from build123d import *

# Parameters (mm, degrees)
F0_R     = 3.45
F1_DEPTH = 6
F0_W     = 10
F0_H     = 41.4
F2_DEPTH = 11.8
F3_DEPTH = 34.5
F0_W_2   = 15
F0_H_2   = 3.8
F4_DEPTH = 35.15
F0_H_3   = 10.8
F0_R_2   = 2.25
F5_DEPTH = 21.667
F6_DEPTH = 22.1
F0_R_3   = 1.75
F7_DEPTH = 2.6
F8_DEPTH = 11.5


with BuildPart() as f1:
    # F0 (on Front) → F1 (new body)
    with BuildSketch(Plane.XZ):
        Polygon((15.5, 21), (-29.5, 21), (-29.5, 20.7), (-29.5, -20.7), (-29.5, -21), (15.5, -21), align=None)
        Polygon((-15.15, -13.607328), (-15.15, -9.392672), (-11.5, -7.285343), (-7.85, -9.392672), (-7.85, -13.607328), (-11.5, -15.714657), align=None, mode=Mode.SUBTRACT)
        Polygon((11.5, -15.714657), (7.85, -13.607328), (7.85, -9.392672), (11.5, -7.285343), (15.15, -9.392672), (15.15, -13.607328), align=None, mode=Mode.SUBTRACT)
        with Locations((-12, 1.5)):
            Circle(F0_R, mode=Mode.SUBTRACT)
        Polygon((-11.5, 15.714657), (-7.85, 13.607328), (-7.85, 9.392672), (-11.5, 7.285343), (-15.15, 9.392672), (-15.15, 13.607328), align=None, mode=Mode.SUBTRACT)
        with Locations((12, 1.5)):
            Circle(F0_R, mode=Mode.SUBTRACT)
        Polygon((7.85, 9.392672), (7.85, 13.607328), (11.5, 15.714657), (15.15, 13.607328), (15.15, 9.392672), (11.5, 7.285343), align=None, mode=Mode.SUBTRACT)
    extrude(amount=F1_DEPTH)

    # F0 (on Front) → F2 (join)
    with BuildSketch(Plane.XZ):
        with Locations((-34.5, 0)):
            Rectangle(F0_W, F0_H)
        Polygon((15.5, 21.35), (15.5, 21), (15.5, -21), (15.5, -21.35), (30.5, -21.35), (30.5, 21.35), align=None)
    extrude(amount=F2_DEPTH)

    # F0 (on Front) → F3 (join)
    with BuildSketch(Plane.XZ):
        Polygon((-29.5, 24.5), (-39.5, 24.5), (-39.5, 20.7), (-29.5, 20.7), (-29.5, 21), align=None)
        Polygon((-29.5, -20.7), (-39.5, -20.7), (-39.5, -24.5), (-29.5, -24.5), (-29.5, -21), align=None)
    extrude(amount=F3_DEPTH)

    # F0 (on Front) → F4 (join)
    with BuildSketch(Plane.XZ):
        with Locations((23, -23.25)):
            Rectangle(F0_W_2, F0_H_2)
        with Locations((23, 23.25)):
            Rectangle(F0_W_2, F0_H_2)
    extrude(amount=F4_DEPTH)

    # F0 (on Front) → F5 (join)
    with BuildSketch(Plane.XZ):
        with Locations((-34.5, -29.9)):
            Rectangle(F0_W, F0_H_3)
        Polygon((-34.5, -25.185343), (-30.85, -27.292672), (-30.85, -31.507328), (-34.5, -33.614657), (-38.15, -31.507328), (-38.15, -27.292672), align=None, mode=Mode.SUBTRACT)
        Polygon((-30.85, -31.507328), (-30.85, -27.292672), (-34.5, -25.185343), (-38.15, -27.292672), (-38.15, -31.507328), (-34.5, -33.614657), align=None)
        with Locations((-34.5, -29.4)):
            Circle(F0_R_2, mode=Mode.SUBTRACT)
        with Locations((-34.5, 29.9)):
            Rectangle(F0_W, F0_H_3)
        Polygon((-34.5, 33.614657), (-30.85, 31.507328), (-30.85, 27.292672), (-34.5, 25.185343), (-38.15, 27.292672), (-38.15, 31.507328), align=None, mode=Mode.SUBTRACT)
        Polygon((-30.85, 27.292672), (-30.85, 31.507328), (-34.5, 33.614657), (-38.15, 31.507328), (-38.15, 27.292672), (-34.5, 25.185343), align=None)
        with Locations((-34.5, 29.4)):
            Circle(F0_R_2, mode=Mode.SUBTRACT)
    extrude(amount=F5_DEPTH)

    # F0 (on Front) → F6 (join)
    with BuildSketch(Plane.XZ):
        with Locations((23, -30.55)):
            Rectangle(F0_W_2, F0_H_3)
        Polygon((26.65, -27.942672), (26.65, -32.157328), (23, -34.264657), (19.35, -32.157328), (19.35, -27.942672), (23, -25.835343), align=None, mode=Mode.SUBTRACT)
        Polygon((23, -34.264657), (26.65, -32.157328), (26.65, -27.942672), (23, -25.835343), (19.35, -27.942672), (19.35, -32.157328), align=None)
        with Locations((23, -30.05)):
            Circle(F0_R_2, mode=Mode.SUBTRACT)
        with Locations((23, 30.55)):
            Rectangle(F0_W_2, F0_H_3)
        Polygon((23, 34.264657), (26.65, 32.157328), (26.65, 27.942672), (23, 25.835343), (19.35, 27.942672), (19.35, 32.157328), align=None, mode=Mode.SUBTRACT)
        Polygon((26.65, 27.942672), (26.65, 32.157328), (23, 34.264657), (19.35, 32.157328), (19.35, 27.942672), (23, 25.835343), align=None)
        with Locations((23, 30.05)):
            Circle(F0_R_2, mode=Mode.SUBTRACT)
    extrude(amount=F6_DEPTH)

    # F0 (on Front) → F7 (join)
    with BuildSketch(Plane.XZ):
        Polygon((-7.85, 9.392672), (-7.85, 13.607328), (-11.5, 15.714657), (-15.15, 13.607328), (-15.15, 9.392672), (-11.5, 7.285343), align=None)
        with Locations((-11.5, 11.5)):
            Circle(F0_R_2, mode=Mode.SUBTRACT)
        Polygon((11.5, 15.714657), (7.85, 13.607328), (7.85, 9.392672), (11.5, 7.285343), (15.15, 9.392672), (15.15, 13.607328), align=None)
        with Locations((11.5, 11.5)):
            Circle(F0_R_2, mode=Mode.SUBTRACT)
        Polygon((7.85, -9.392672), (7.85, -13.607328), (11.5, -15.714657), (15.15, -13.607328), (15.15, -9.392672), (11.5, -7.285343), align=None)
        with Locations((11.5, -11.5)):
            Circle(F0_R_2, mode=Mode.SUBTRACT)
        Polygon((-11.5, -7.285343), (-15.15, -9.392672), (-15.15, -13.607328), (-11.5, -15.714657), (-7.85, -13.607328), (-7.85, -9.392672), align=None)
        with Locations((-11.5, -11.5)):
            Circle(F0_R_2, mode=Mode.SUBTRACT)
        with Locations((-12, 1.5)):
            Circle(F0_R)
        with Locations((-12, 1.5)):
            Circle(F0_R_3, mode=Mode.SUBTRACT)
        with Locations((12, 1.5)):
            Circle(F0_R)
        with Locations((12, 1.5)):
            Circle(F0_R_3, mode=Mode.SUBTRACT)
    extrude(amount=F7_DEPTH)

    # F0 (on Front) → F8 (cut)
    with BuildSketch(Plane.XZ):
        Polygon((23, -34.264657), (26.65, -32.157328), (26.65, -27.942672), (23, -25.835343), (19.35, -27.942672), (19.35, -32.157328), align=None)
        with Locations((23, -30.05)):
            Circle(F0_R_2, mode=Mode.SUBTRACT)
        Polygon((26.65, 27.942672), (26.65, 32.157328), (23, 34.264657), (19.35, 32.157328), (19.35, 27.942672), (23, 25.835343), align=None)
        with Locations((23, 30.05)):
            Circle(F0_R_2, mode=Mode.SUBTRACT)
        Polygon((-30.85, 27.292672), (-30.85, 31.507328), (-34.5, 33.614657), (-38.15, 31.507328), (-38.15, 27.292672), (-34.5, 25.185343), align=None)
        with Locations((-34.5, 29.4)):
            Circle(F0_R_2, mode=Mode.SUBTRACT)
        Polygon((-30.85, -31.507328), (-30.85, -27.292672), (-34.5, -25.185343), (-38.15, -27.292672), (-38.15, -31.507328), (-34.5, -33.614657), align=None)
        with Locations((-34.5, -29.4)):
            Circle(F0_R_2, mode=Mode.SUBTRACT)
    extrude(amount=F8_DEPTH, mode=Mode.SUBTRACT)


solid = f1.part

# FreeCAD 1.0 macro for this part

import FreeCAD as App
import Part
import Sketcher
from FreeCAD import Vector
Q = App.Units.Quantity


def add_polygon(sketch, points):
    """Adds a closed chain of lines whose ends are joined by coincident constraints."""
    first, n = sketch.GeometryCount, len(points)
    for a, b in zip(points, points[1:] + points[:1]):
        sketch.addGeometry(Part.LineSegment(App.Vector(*a, 0), App.Vector(*b, 0)), False)
    for i in range(n):
        sketch.addConstraint(Sketcher.Constraint("Coincident", first + i, 2, first + (i + 1) % n, 1))

doc = App.newDocument("Part")
params = doc.addObject("Spreadsheet::Sheet", "Params")
for row, (alias, value) in enumerate([
    ("sketch1_diameter", "6.9 mm"),
    ("sketch1_width", "45 mm"),
    ("sketch1_height", "42 mm"),
    ("pad1_length", "6 mm"),
    ("sketch2_width", "10 mm"),
    ("sketch2_width2", "15 mm"),
    ("sketch2_height", "41.4 mm"),
    ("sketch2_height2", "42.7 mm"),
    ("pad2_length", "11.8 mm"),
    ("sketch3_width", "10 mm"),
    ("sketch3_height", "3.8 mm"),
    ("pad3_length", "34.5 mm"),
    ("sketch4_width", "15 mm"),
    ("sketch4_height", "3.8 mm"),
    ("pad4_length", "35.15 mm"),
    ("sketch5_diameter", "4.5 mm"),
    ("sketch5_width", "10 mm"),
    ("sketch5_height", "10.8 mm"),
    ("pad5_length", "21.667 mm"),
    ("sketch6_diameter", "4.5 mm"),
    ("sketch6_width", "15 mm"),
    ("sketch6_height", "10.8 mm"),
    ("pad6_length", "22.1 mm"),
    ("sketch7_diameter", "4.5 mm"),
    ("sketch7_diameter2", "6.9 mm"),
    ("sketch7_diameter3", "3.5 mm"),
    ("pad7_length", "2.6 mm"),
    ("sketch8_diameter", "4.5 mm"),
    ("pocket1_length", "11.5 mm"),
], start=1):
    params.set(f"A{row}", alias)
    params.set(f"B{row}", "=" + value)
    params.setAlias(f"B{row}", alias)

body = doc.addObject("PartDesign::Body", "Body")

# Sketch on XZ plane
sketch1 = body.newObject("Sketcher::SketchObject", "Sketch")
sketch1.AttachmentSupport = (doc.getObject("XZ_Plane"), [""])
sketch1.MapMode = "FlatFace"
add_polygon(sketch1, [(15.5, 21), (-29.5, 21), (-29.5, -21), (15.5, -21)])  # lines 0-3
add_polygon(sketch1, [(-11.5, -15.714657), (-15.15, -13.607328), (-15.15, -9.392672), (-11.5, -7.285343), (-7.85, -9.392672), (-7.85, -13.607328)])  # lines 4-9
add_polygon(sketch1, [(15.15, -13.607328), (11.5, -15.714657), (7.85, -13.607328), (7.85, -9.392672), (11.5, -7.285343), (15.15, -9.392672)])  # lines 10-15
sketch1.addGeometry(Part.Circle(Vector(-12, 1.5, 0), Vector(0, 0, 1), 3.45), False)  # 16
add_polygon(sketch1, [(-15.15, 13.607328), (-11.5, 15.714657), (-7.85, 13.607328), (-7.85, 9.392672), (-11.5, 7.285343), (-15.15, 9.392672)])  # lines 17-22
sketch1.addGeometry(Part.Circle(Vector(12, 1.5, 0), Vector(0, 0, 1), 3.45), False)  # 23
add_polygon(sketch1, [(11.5, 7.285343), (7.85, 9.392672), (7.85, 13.607328), (11.5, 15.714657), (15.15, 13.607328), (15.15, 9.392672)])  # lines 24-29
sketch1.addConstraint([
    Sketcher.Constraint("Horizontal", 0),
    Sketcher.Constraint("Vertical", 1),
    Sketcher.Constraint("Horizontal", 2),
    Sketcher.Constraint("Vertical", 3),
    Sketcher.Constraint("Vertical", 5),
    Sketcher.Constraint("Vertical", 8),
    Sketcher.Constraint("Vertical", 12),
    Sketcher.Constraint("Vertical", 15),
    Sketcher.Constraint("Vertical", 19),
    Sketcher.Constraint("Vertical", 22),
    Sketcher.Constraint("Vertical", 25),
    Sketcher.Constraint("Vertical", 28),
    Sketcher.Constraint("Equal", 16, 23),
    Sketcher.Constraint("Symmetric", 10, 2, 17, 2, -1, 1),
    Sketcher.Constraint("Symmetric", 11, 2, 18, 2, -1, 1),
    Sketcher.Constraint("Symmetric", 13, 2, 20, 2, -1, 1),
    Sketcher.Constraint("Symmetric", 14, 2, 21, 2, -1, 1),
    Sketcher.Constraint("Symmetric", 7, 2, 24, 2, -1, 1),
    Sketcher.Constraint("Symmetric", 9, 2, 26, 2, -1, 1),
    Sketcher.Constraint("Symmetric", 4, 2, 27, 2, -1, 1),
    Sketcher.Constraint("Symmetric", 6, 2, 29, 2, -1, 1),
    Sketcher.Constraint("Symmetric", 16, 3, 23, 3, -2),
    Sketcher.Constraint("Symmetric", 9, 2, 10, 2, -2),
    Sketcher.Constraint("Symmetric", 8, 2, 11, 2, -2),
    Sketcher.Constraint("Symmetric", 6, 2, 13, 2, -2),
    Sketcher.Constraint("Symmetric", 5, 2, 14, 2, -2),
    Sketcher.Constraint("Parallel", 4, 7),
    Sketcher.Constraint("Parallel", 6, 9),
    Sketcher.Constraint("Parallel", 9, 10),
    Sketcher.Constraint("Parallel", 7, 11),
    Sketcher.Constraint("Parallel", 10, 13),
    Sketcher.Constraint("Parallel", 13, 17),
    Sketcher.Constraint("Parallel", 17, 20),
    Sketcher.Constraint("Parallel", 20, 26),
    Sketcher.Constraint("Parallel", 26, 29),
    Sketcher.Constraint("Horizontal", 5, 2, 7, 2),
    Sketcher.Constraint("Horizontal", 4, 2, 8, 2),
    Sketcher.Constraint("Diameter", 16, 6.9),
    Sketcher.Constraint("DistanceX", 0, 2, 0, 1, 45.0),
    Sketcher.Constraint("DistanceY", 1, 2, 1, 1, 42.0),
    Sketcher.Constraint("Angle", 4, Q("149.999994 deg")),
    Sketcher.Constraint("DistanceX", 16, 3, -1, 1, 12.0),
    Sketcher.Constraint("DistanceY", -1, 1, 0, 2, 21.0),
    Sketcher.Constraint("DistanceX", 1, 2, 6, 2, 18.0),
    Sketcher.Constraint("DistanceX", 10, 2, 2, 2, 4.0),
    Sketcher.Constraint("DistanceY", 6, 2, 17, 2, 23.0),
    Sketcher.Constraint("DistanceY", -1, 1, 16, 3, 1.5),
    Sketcher.Constraint("DistanceX", 5, 2, 7, 2, 7.3),
    Sketcher.Constraint("DistanceY", 5, 1, 5, 2, 4.214656),
])
sketch1.setExpression("Constraints[65]", "Params.sketch1_diameter")
sketch1.setExpression("Constraints[66]", "Params.sketch1_width")
sketch1.setExpression("Constraints[67]", "Params.sketch1_height")
pad1 = body.newObject("PartDesign::Pad", "Pad")
pad1.Profile = sketch1
pad1.setExpression("Length", "Params.pad1_length")

# Sketch on XZ plane
sketch2 = body.newObject("Sketcher::SketchObject", "Sketch001")
sketch2.AttachmentSupport = (doc.getObject("XZ_Plane"), [""])
sketch2.MapMode = "FlatFace"
add_polygon(sketch2, [(-39.5, 20.7), (-39.5, -20.7), (-29.5, -20.7), (-29.5, 20.7)])  # lines 0-3
add_polygon(sketch2, [(15.5, 21.35), (15.5, -21.35), (30.5, -21.35), (30.5, 21.35)])  # lines 4-7
sketch2.addConstraint([
    Sketcher.Constraint("Vertical", 0),
    Sketcher.Constraint("Horizontal", 1),
    Sketcher.Constraint("Vertical", 2),
    Sketcher.Constraint("Horizontal", 3),
    Sketcher.Constraint("Vertical", 4),
    Sketcher.Constraint("Horizontal", 5),
    Sketcher.Constraint("Vertical", 6),
    Sketcher.Constraint("Horizontal", 7),
    Sketcher.Constraint("DistanceX", 1, 1, 1, 2, 10.0),
    Sketcher.Constraint("DistanceX", 5, 1, 5, 2, 15.0),
    Sketcher.Constraint("DistanceY", 0, 2, 0, 1, 41.4),
    Sketcher.Constraint("DistanceY", 4, 2, 4, 1, 42.7),
    Sketcher.Constraint("DistanceX", 1, 2, 4, 2, 45.0),
    Sketcher.Constraint("DistanceX", 0, 2, -1, 1, 39.5),
    Sketcher.Constraint("DistanceY", 0, 2, -1, 1, 20.7),
    Sketcher.Constraint("DistanceY", 4, 2, -1, 1, 21.35),
])
sketch2.setExpression("Constraints[16]", "Params.sketch2_width")
sketch2.setExpression("Constraints[17]", "Params.sketch2_width2")
sketch2.setExpression("Constraints[18]", "Params.sketch2_height")
sketch2.setExpression("Constraints[19]", "Params.sketch2_height2")
pad2 = body.newObject("PartDesign::Pad", "Pad001")
pad2.Profile = sketch2
pad2.setExpression("Length", "Params.pad2_length")

# Sketch on XZ plane
sketch3 = body.newObject("Sketcher::SketchObject", "Sketch002")
sketch3.AttachmentSupport = (doc.getObject("XZ_Plane"), [""])
sketch3.MapMode = "FlatFace"
add_polygon(sketch3, [(-29.5, 24.5), (-39.5, 24.5), (-39.5, 20.7), (-29.5, 20.7)])  # lines 0-3
add_polygon(sketch3, [(-29.5, -20.7), (-39.5, -20.7), (-39.5, -24.5), (-29.5, -24.5)])  # lines 4-7
sketch3.addConstraint([
    Sketcher.Constraint("Horizontal", 0),
    Sketcher.Constraint("Vertical", 1),
    Sketcher.Constraint("Horizontal", 2),
    Sketcher.Constraint("Vertical", 3),
    Sketcher.Constraint("Horizontal", 4),
    Sketcher.Constraint("Vertical", 5),
    Sketcher.Constraint("Horizontal", 6),
    Sketcher.Constraint("Vertical", 7),
    Sketcher.Constraint("Symmetric", 1, 2, 4, 2, -1),
    Sketcher.Constraint("Symmetric", 3, 2, 6, 2, -1),
    Sketcher.Constraint("DistanceX", 0, 2, 0, 1, 10.0),
    Sketcher.Constraint("DistanceY", 1, 2, 1, 1, 3.8),
    Sketcher.Constraint("DistanceY", 5, 2, 0, 2, 49.0),
    Sketcher.Constraint("DistanceX", 0, 2, -1, 1, 39.5),
])
sketch3.setExpression("Constraints[18]", "Params.sketch3_width")
sketch3.setExpression("Constraints[19]", "Params.sketch3_height")
pad3 = body.newObject("PartDesign::Pad", "Pad002")
pad3.Profile = sketch3
pad3.setExpression("Length", "Params.pad3_length")

# Sketch on XZ plane
sketch4 = body.newObject("Sketcher::SketchObject", "Sketch003")
sketch4.AttachmentSupport = (doc.getObject("XZ_Plane"), [""])
sketch4.MapMode = "FlatFace"
add_polygon(sketch4, [(15.5, -21.35), (15.5, -25.15), (30.5, -25.15), (30.5, -21.35)])  # lines 0-3
add_polygon(sketch4, [(15.5, 25.15), (15.5, 21.35), (30.5, 21.35), (30.5, 25.15)])  # lines 4-7
sketch4.addConstraint([
    Sketcher.Constraint("Vertical", 0),
    Sketcher.Constraint("Horizontal", 1),
    Sketcher.Constraint("Vertical", 2),
    Sketcher.Constraint("Horizontal", 3),
    Sketcher.Constraint("Vertical", 4),
    Sketcher.Constraint("Horizontal", 5),
    Sketcher.Constraint("Vertical", 6),
    Sketcher.Constraint("Horizontal", 7),
    Sketcher.Constraint("Symmetric", 3, 2, 4, 2, -1),
    Sketcher.Constraint("Symmetric", 1, 2, 6, 2, -1),
    Sketcher.Constraint("DistanceX", 1, 1, 1, 2, 15.0),
    Sketcher.Constraint("DistanceY", 0, 2, 0, 1, 3.8),
    Sketcher.Constraint("DistanceX", -1, 1, 0, 2, 15.5),
    Sketcher.Constraint("DistanceY", 3, 2, 4, 2, 42.7),
])
sketch4.setExpression("Constraints[18]", "Params.sketch4_width")
sketch4.setExpression("Constraints[19]", "Params.sketch4_height")
pad4 = body.newObject("PartDesign::Pad", "Pad003")
pad4.Profile = sketch4
pad4.setExpression("Length", "Params.pad4_length")

# Sketch on XZ plane
sketch5 = body.newObject("Sketcher::SketchObject", "Sketch004")
sketch5.AttachmentSupport = (doc.getObject("XZ_Plane"), [""])
sketch5.MapMode = "FlatFace"
add_polygon(sketch5, [(-39.5, -24.5), (-39.5, -35.3), (-29.5, -35.3), (-29.5, -24.5)])  # lines 0-3
sketch5.addGeometry(Part.Circle(Vector(-34.5, -29.4, 0), Vector(0, 0, 1), 2.25), False)  # 4
add_polygon(sketch5, [(-39.5, 35.3), (-39.5, 24.5), (-29.5, 24.5), (-29.5, 35.3)])  # lines 5-8
sketch5.addGeometry(Part.Circle(Vector(-34.5, 29.4, 0), Vector(0, 0, 1), 2.25), False)  # 9
sketch5.addConstraint([
    Sketcher.Constraint("Vertical", 0),
    Sketcher.Constraint("Horizontal", 1),
    Sketcher.Constraint("Vertical", 2),
    Sketcher.Constraint("Horizontal", 3),
    Sketcher.Constraint("Vertical", 5),
    Sketcher.Constraint("Horizontal", 6),
    Sketcher.Constraint("Vertical", 7),
    Sketcher.Constraint("Horizontal", 8),
    Sketcher.Constraint("Equal", 4, 9),
    Sketcher.Constraint("Symmetric", 4, 3, 9, 3, -1),
    Sketcher.Constraint("Symmetric", 3, 2, 5, 2, -1),
    Sketcher.Constraint("Symmetric", 1, 2, 7, 2, -1),
    Sketcher.Constraint("Diameter", 4, 4.5),
    Sketcher.Constraint("DistanceX", 1, 1, 1, 2, 10.0),
    Sketcher.Constraint("DistanceY", 0, 2, 0, 1, 10.8),
    Sketcher.Constraint("DistanceX", 0, 2, 4, 3, 5.0),
    Sketcher.Constraint("DistanceY", 3, 2, 5, 2, 49.0),
    Sketcher.Constraint("DistanceX", 4, 3, -1, 1, 34.5),
    Sketcher.Constraint("DistanceY", 4, 3, -1, 1, 29.4),
])
sketch5.setExpression("Constraints[20]", "Params.sketch5_diameter")
sketch5.setExpression("Constraints[21]", "Params.sketch5_width")
sketch5.setExpression("Constraints[22]", "Params.sketch5_height")
pad5 = body.newObject("PartDesign::Pad", "Pad004")
pad5.Profile = sketch5
pad5.setExpression("Length", "Params.pad5_length")

# Sketch on XZ plane
sketch6 = body.newObject("Sketcher::SketchObject", "Sketch005")
sketch6.AttachmentSupport = (doc.getObject("XZ_Plane"), [""])
sketch6.MapMode = "FlatFace"
add_polygon(sketch6, [(15.5, -25.15), (15.5, -35.95), (30.5, -35.95), (30.5, -25.15)])  # lines 0-3
sketch6.addGeometry(Part.Circle(Vector(23, -30.05, 0), Vector(0, 0, 1), 2.25), False)  # 4
add_polygon(sketch6, [(15.5, 35.95), (15.5, 25.15), (30.5, 25.15), (30.5, 35.95)])  # lines 5-8
sketch6.addGeometry(Part.Circle(Vector(23, 30.05, 0), Vector(0, 0, 1), 2.25), False)  # 9
sketch6.addConstraint([
    Sketcher.Constraint("Vertical", 0),
    Sketcher.Constraint("Horizontal", 1),
    Sketcher.Constraint("Vertical", 2),
    Sketcher.Constraint("Horizontal", 3),
    Sketcher.Constraint("Vertical", 5),
    Sketcher.Constraint("Horizontal", 6),
    Sketcher.Constraint("Vertical", 7),
    Sketcher.Constraint("Horizontal", 8),
    Sketcher.Constraint("Equal", 4, 9),
    Sketcher.Constraint("Symmetric", 4, 3, 9, 3, -1),
    Sketcher.Constraint("Symmetric", 3, 2, 5, 2, -1),
    Sketcher.Constraint("Symmetric", 1, 2, 7, 2, -1),
    Sketcher.Constraint("Diameter", 4, 4.5),
    Sketcher.Constraint("DistanceX", 1, 1, 1, 2, 15.0),
    Sketcher.Constraint("DistanceY", 0, 2, 0, 1, 10.8),
    Sketcher.Constraint("DistanceX", -1, 1, 4, 3, 23.0),
    Sketcher.Constraint("DistanceY", 0, 2, 9, 3, 66.0),
    Sketcher.Constraint("DistanceX", -1, 1, 0, 2, 15.5),
    Sketcher.Constraint("DistanceY", 4, 3, 9, 3, 60.1),
])
sketch6.setExpression("Constraints[20]", "Params.sketch6_diameter")
sketch6.setExpression("Constraints[21]", "Params.sketch6_width")
sketch6.setExpression("Constraints[22]", "Params.sketch6_height")
pad6 = body.newObject("PartDesign::Pad", "Pad005")
pad6.Profile = sketch6
pad6.setExpression("Length", "Params.pad6_length")

# Sketch on XZ plane
sketch7 = body.newObject("Sketcher::SketchObject", "Sketch006")
sketch7.AttachmentSupport = (doc.getObject("XZ_Plane"), [""])
sketch7.MapMode = "FlatFace"
add_polygon(sketch7, [(-7.85, 9.392672), (-7.85, 13.607328), (-11.5, 15.714657), (-15.15, 13.607328), (-15.15, 9.392672), (-11.5, 7.285343)])  # lines 0-5
sketch7.addGeometry(Part.Circle(Vector(-11.5, 11.5, 0), Vector(0, 0, 1), 2.25), False)  # 6
add_polygon(sketch7, [(11.5, 15.714657), (7.85, 13.607328), (7.85, 9.392672), (11.5, 7.285343), (15.15, 9.392672), (15.15, 13.607328)])  # lines 7-12
sketch7.addGeometry(Part.Circle(Vector(11.5, 11.5, 0), Vector(0, 0, 1), 2.25), False)  # 13
add_polygon(sketch7, [(7.85, -9.392672), (7.85, -13.607328), (11.5, -15.714657), (15.15, -13.607328), (15.15, -9.392672), (11.5, -7.285343)])  # lines 14-19
sketch7.addGeometry(Part.Circle(Vector(11.5, -11.5, 0), Vector(0, 0, 1), 2.25), False)  # 20
add_polygon(sketch7, [(-11.5, -7.285343), (-15.15, -9.392672), (-15.15, -13.607328), (-11.5, -15.714657), (-7.85, -13.607328), (-7.85, -9.392672)])  # lines 21-26
sketch7.addGeometry(Part.Circle(Vector(-11.5, -11.5, 0), Vector(0, 0, 1), 2.25), False)  # 27
sketch7.addGeometry(Part.Circle(Vector(-12, 1.5, 0), Vector(0, 0, 1), 3.45), False)  # 28
sketch7.addGeometry(Part.Circle(Vector(-12, 1.5, 0), Vector(0, 0, 1), 1.75), False)  # 29
sketch7.addGeometry(Part.Circle(Vector(12, 1.5, 0), Vector(0, 0, 1), 3.45), False)  # 30
sketch7.addGeometry(Part.Circle(Vector(12, 1.5, 0), Vector(0, 0, 1), 1.75), False)  # 31
sketch7.addConstraint([
    Sketcher.Constraint("Vertical", 0),
    Sketcher.Constraint("Vertical", 3),
    Sketcher.Constraint("Vertical", 8),
    Sketcher.Constraint("Vertical", 11),
    Sketcher.Constraint("Vertical", 14),
    Sketcher.Constraint("Vertical", 17),
    Sketcher.Constraint("Vertical", 22),
    Sketcher.Constraint("Vertical", 25),
    Sketcher.Constraint("Coincident", 29, 3, 28, 3),
    Sketcher.Constraint("Coincident", 31, 3, 30, 3),
    Sketcher.Constraint("Equal", 6, 13),
    Sketcher.Constraint("Equal", 13, 20),
    Sketcher.Constraint("Equal", 20, 27),
    Sketcher.Constraint("Equal", 28, 30),
    Sketcher.Constraint("Equal", 29, 31),
    Sketcher.Constraint("Symmetric", 6, 3, 20, 3, -1, 1),
    Sketcher.Constraint("Symmetric", 13, 3, 27, 3, -1, 1),
    Sketcher.Constraint("Symmetric", 0, 2, 14, 2, -1, 1),
    Sketcher.Constraint("Symmetric", 1, 2, 15, 2, -1, 1),
    Sketcher.Constraint("Symmetric", 2, 2, 16, 2, -1, 1),
    Sketcher.Constraint("Symmetric", 4, 2, 18, 2, -1, 1),
    Sketcher.Constraint("Symmetric", 10, 2, 21, 2, -1, 1),
    Sketcher.Constraint("Symmetric", 12, 2, 23, 2, -1, 1),
    Sketcher.Constraint("Symmetric", 7, 2, 24, 2, -1, 1),
    Sketcher.Constraint("Symmetric", 9, 2, 26, 2, -1, 1),
    Sketcher.Constraint("Symmetric", 6, 3, 13, 3, -2),
    Sketcher.Constraint("Symmetric", 28, 3, 30, 3, -2),
    Sketcher.Constraint("Symmetric", 0, 2, 7, 2, -2),
    Sketcher.Constraint("Symmetric", 4, 2, 9, 2, -2),
    Sketcher.Constraint("Symmetric", 3, 2, 10, 2, -2),
    Sketcher.Constraint("Symmetric", 1, 2, 12, 2, -2),
    Sketcher.Constraint("Parallel", 1, 4),
    Sketcher.Constraint("Parallel", 2, 5),
    Sketcher.Constraint("Parallel", 5, 7),
    Sketcher.Constraint("Parallel", 4, 9),
    Sketcher.Constraint("Parallel", 9, 12),
    Sketcher.Constraint("Parallel", 15, 18),
    Sketcher.Constraint("Parallel", 16, 19),
    Sketcher.Constraint("Parallel", 18, 23),
    Sketcher.Constraint("Parallel", 23, 26),
    Sketcher.Constraint("Horizontal", 0, 2, 2, 2),
    Sketcher.Constraint("Horizontal", 3, 2, 5, 2),
    Sketcher.Constraint("Vertical", 27, 3, 1, 2),
    Sketcher.Constraint("Diameter", 6, 4.5),
    Sketcher.Constraint("Diameter", 28, 6.9),
    Sketcher.Constraint("Diameter", 29, 3.5),
    Sketcher.Constraint("Angle", 1, Q("149.999994 deg")),
    Sketcher.Constraint("DistanceX", 28, 3, -1, 1, 12.0),
    Sketcher.Constraint("DistanceX", 6, 3, 13, 3, 23.0),
    Sketcher.Constraint("DistanceY", 20, 3, 13, 3, 23.0),
    Sketcher.Constraint("DistanceY", 28, 3, 6, 3, 10.0),
    Sketcher.Constraint("DistanceY", 15, 2, 9, 2, 23.0),
    Sketcher.Constraint("DistanceX", 2, 2, 0, 2, 7.3),
    Sketcher.Constraint("DistanceY", 0, 1, 0, 2, 4.214656),
])
sketch7.setExpression("Constraints[67]", "Params.sketch7_diameter")
sketch7.setExpression("Constraints[68]", "Params.sketch7_diameter2")
sketch7.setExpression("Constraints[69]", "Params.sketch7_diameter3")
pad7 = body.newObject("PartDesign::Pad", "Pad006")
pad7.Profile = sketch7
pad7.setExpression("Length", "Params.pad7_length")

# Sketch on XZ plane
sketch8 = body.newObject("Sketcher::SketchObject", "Sketch007")
sketch8.AttachmentSupport = (doc.getObject("XZ_Plane"), [""])
sketch8.MapMode = "FlatFace"
add_polygon(sketch8, [(23, -34.264657), (26.65, -32.157328), (26.65, -27.942672), (23, -25.835343), (19.35, -27.942672), (19.35, -32.157328)])  # lines 0-5
sketch8.addGeometry(Part.Circle(Vector(23, -30.05, 0), Vector(0, 0, 1), 2.25), False)  # 6
add_polygon(sketch8, [(26.65, 27.942672), (26.65, 32.157328), (23, 34.264657), (19.35, 32.157328), (19.35, 27.942672), (23, 25.835343)])  # lines 7-12
sketch8.addGeometry(Part.Circle(Vector(23, 30.05, 0), Vector(0, 0, 1), 2.25), False)  # 13
add_polygon(sketch8, [(-30.85, 27.292672), (-30.85, 31.507328), (-34.5, 33.614657), (-38.15, 31.507328), (-38.15, 27.292672), (-34.5, 25.185343)])  # lines 14-19
sketch8.addGeometry(Part.Circle(Vector(-34.5, 29.4, 0), Vector(0, 0, 1), 2.25), False)  # 20
add_polygon(sketch8, [(-30.85, -31.507328), (-30.85, -27.292672), (-34.5, -25.185343), (-38.15, -27.292672), (-38.15, -31.507328), (-34.5, -33.614657)])  # lines 21-26
sketch8.addGeometry(Part.Circle(Vector(-34.5, -29.4, 0), Vector(0, 0, 1), 2.25), False)  # 27
sketch8.addConstraint([
    Sketcher.Constraint("Vertical", 1),
    Sketcher.Constraint("Vertical", 4),
    Sketcher.Constraint("Vertical", 7),
    Sketcher.Constraint("Vertical", 10),
    Sketcher.Constraint("Vertical", 14),
    Sketcher.Constraint("Vertical", 17),
    Sketcher.Constraint("Vertical", 21),
    Sketcher.Constraint("Vertical", 24),
    Sketcher.Constraint("Equal", 6, 13),
    Sketcher.Constraint("Equal", 13, 20),
    Sketcher.Constraint("Equal", 20, 27),
    Sketcher.Constraint("Symmetric", 6, 3, 13, 3, -1),
    Sketcher.Constraint("Symmetric", 20, 3, 27, 3, -1),
    Sketcher.Constraint("Symmetric", 0, 2, 7, 2, -1),
    Sketcher.Constraint("Symmetric", 5, 2, 8, 2, -1),
    Sketcher.Constraint("Symmetric", 4, 2, 9, 2, -1),
    Sketcher.Constraint("Symmetric", 2, 2, 11, 2, -1),
    Sketcher.Constraint("Symmetric", 19, 2, 21, 2, -1),
    Sketcher.Constraint("Symmetric", 18, 2, 22, 2, -1),
    Sketcher.Constraint("Symmetric", 17, 2, 23, 2, -1),
    Sketcher.Constraint("Symmetric", 15, 2, 25, 2, -1),
    Sketcher.Constraint("Parallel", 0, 3),
    Sketcher.Constraint("Parallel", 2, 5),
    Sketcher.Constraint("Parallel", 5, 8),
    Sketcher.Constraint("Parallel", 8, 11),
    Sketcher.Constraint("Parallel", 9, 12),
    Sketcher.Constraint("Parallel", 11, 15),
    Sketcher.Constraint("Parallel", 12, 16),
    Sketcher.Constraint("Parallel", 15, 18),
    Sketcher.Constraint("Parallel", 16, 19),
    Sketcher.Constraint("Parallel", 22, 25),
    Sketcher.Constraint("Parallel", 23, 26),
    Sketcher.Constraint("Horizontal", 1, 2, 3, 2),
    Sketcher.Constraint("Horizontal", 0, 2, 4, 2),
    Sketcher.Constraint("Horizontal", 14, 2, 16, 2),
    Sketcher.Constraint("Horizontal", 17, 2, 19, 2),
    Sketcher.Constraint("Vertical", 13, 3, 2, 2),
    Sketcher.Constraint("Vertical", 27, 3, 15, 2),
    Sketcher.Constraint("Equal", 10, 14),
    Sketcher.Constraint("Equal", 12, 15),
    Sketcher.Constraint("Diameter", 6, 4.5),
    Sketcher.Constraint("Angle", 0, Q("30.000006 deg")),
    Sketcher.Constraint("DistanceX", -1, 1, 6, 3, 23.0),
    Sketcher.Constraint("DistanceX", 20, 3, -1, 1, 34.5),
    Sketcher.Constraint("DistanceY", -1, 1, 20, 3, 29.4),
    Sketcher.Constraint("DistanceY", 6, 3, 13, 3, 60.1),
    Sketcher.Constraint("DistanceX", 3, 2, 1, 2, 7.3),
    Sketcher.Constraint("DistanceY", 1, 2, 7, 2, 60.1),
    Sketcher.Constraint("DistanceY", 14, 2, 9, 2, 0.65),
    Sketcher.Constraint("DistanceY", 1, 1, 1, 2, 4.214656),
])
sketch8.setExpression("Constraints[64]", "Params.sketch8_diameter")
pocket1 = body.newObject("PartDesign::Pocket", "Pocket")
pocket1.Profile = sketch8
pocket1.setExpression("Length", "Params.pocket1_length")
pocket1.Reversed = True

doc.recompute()
